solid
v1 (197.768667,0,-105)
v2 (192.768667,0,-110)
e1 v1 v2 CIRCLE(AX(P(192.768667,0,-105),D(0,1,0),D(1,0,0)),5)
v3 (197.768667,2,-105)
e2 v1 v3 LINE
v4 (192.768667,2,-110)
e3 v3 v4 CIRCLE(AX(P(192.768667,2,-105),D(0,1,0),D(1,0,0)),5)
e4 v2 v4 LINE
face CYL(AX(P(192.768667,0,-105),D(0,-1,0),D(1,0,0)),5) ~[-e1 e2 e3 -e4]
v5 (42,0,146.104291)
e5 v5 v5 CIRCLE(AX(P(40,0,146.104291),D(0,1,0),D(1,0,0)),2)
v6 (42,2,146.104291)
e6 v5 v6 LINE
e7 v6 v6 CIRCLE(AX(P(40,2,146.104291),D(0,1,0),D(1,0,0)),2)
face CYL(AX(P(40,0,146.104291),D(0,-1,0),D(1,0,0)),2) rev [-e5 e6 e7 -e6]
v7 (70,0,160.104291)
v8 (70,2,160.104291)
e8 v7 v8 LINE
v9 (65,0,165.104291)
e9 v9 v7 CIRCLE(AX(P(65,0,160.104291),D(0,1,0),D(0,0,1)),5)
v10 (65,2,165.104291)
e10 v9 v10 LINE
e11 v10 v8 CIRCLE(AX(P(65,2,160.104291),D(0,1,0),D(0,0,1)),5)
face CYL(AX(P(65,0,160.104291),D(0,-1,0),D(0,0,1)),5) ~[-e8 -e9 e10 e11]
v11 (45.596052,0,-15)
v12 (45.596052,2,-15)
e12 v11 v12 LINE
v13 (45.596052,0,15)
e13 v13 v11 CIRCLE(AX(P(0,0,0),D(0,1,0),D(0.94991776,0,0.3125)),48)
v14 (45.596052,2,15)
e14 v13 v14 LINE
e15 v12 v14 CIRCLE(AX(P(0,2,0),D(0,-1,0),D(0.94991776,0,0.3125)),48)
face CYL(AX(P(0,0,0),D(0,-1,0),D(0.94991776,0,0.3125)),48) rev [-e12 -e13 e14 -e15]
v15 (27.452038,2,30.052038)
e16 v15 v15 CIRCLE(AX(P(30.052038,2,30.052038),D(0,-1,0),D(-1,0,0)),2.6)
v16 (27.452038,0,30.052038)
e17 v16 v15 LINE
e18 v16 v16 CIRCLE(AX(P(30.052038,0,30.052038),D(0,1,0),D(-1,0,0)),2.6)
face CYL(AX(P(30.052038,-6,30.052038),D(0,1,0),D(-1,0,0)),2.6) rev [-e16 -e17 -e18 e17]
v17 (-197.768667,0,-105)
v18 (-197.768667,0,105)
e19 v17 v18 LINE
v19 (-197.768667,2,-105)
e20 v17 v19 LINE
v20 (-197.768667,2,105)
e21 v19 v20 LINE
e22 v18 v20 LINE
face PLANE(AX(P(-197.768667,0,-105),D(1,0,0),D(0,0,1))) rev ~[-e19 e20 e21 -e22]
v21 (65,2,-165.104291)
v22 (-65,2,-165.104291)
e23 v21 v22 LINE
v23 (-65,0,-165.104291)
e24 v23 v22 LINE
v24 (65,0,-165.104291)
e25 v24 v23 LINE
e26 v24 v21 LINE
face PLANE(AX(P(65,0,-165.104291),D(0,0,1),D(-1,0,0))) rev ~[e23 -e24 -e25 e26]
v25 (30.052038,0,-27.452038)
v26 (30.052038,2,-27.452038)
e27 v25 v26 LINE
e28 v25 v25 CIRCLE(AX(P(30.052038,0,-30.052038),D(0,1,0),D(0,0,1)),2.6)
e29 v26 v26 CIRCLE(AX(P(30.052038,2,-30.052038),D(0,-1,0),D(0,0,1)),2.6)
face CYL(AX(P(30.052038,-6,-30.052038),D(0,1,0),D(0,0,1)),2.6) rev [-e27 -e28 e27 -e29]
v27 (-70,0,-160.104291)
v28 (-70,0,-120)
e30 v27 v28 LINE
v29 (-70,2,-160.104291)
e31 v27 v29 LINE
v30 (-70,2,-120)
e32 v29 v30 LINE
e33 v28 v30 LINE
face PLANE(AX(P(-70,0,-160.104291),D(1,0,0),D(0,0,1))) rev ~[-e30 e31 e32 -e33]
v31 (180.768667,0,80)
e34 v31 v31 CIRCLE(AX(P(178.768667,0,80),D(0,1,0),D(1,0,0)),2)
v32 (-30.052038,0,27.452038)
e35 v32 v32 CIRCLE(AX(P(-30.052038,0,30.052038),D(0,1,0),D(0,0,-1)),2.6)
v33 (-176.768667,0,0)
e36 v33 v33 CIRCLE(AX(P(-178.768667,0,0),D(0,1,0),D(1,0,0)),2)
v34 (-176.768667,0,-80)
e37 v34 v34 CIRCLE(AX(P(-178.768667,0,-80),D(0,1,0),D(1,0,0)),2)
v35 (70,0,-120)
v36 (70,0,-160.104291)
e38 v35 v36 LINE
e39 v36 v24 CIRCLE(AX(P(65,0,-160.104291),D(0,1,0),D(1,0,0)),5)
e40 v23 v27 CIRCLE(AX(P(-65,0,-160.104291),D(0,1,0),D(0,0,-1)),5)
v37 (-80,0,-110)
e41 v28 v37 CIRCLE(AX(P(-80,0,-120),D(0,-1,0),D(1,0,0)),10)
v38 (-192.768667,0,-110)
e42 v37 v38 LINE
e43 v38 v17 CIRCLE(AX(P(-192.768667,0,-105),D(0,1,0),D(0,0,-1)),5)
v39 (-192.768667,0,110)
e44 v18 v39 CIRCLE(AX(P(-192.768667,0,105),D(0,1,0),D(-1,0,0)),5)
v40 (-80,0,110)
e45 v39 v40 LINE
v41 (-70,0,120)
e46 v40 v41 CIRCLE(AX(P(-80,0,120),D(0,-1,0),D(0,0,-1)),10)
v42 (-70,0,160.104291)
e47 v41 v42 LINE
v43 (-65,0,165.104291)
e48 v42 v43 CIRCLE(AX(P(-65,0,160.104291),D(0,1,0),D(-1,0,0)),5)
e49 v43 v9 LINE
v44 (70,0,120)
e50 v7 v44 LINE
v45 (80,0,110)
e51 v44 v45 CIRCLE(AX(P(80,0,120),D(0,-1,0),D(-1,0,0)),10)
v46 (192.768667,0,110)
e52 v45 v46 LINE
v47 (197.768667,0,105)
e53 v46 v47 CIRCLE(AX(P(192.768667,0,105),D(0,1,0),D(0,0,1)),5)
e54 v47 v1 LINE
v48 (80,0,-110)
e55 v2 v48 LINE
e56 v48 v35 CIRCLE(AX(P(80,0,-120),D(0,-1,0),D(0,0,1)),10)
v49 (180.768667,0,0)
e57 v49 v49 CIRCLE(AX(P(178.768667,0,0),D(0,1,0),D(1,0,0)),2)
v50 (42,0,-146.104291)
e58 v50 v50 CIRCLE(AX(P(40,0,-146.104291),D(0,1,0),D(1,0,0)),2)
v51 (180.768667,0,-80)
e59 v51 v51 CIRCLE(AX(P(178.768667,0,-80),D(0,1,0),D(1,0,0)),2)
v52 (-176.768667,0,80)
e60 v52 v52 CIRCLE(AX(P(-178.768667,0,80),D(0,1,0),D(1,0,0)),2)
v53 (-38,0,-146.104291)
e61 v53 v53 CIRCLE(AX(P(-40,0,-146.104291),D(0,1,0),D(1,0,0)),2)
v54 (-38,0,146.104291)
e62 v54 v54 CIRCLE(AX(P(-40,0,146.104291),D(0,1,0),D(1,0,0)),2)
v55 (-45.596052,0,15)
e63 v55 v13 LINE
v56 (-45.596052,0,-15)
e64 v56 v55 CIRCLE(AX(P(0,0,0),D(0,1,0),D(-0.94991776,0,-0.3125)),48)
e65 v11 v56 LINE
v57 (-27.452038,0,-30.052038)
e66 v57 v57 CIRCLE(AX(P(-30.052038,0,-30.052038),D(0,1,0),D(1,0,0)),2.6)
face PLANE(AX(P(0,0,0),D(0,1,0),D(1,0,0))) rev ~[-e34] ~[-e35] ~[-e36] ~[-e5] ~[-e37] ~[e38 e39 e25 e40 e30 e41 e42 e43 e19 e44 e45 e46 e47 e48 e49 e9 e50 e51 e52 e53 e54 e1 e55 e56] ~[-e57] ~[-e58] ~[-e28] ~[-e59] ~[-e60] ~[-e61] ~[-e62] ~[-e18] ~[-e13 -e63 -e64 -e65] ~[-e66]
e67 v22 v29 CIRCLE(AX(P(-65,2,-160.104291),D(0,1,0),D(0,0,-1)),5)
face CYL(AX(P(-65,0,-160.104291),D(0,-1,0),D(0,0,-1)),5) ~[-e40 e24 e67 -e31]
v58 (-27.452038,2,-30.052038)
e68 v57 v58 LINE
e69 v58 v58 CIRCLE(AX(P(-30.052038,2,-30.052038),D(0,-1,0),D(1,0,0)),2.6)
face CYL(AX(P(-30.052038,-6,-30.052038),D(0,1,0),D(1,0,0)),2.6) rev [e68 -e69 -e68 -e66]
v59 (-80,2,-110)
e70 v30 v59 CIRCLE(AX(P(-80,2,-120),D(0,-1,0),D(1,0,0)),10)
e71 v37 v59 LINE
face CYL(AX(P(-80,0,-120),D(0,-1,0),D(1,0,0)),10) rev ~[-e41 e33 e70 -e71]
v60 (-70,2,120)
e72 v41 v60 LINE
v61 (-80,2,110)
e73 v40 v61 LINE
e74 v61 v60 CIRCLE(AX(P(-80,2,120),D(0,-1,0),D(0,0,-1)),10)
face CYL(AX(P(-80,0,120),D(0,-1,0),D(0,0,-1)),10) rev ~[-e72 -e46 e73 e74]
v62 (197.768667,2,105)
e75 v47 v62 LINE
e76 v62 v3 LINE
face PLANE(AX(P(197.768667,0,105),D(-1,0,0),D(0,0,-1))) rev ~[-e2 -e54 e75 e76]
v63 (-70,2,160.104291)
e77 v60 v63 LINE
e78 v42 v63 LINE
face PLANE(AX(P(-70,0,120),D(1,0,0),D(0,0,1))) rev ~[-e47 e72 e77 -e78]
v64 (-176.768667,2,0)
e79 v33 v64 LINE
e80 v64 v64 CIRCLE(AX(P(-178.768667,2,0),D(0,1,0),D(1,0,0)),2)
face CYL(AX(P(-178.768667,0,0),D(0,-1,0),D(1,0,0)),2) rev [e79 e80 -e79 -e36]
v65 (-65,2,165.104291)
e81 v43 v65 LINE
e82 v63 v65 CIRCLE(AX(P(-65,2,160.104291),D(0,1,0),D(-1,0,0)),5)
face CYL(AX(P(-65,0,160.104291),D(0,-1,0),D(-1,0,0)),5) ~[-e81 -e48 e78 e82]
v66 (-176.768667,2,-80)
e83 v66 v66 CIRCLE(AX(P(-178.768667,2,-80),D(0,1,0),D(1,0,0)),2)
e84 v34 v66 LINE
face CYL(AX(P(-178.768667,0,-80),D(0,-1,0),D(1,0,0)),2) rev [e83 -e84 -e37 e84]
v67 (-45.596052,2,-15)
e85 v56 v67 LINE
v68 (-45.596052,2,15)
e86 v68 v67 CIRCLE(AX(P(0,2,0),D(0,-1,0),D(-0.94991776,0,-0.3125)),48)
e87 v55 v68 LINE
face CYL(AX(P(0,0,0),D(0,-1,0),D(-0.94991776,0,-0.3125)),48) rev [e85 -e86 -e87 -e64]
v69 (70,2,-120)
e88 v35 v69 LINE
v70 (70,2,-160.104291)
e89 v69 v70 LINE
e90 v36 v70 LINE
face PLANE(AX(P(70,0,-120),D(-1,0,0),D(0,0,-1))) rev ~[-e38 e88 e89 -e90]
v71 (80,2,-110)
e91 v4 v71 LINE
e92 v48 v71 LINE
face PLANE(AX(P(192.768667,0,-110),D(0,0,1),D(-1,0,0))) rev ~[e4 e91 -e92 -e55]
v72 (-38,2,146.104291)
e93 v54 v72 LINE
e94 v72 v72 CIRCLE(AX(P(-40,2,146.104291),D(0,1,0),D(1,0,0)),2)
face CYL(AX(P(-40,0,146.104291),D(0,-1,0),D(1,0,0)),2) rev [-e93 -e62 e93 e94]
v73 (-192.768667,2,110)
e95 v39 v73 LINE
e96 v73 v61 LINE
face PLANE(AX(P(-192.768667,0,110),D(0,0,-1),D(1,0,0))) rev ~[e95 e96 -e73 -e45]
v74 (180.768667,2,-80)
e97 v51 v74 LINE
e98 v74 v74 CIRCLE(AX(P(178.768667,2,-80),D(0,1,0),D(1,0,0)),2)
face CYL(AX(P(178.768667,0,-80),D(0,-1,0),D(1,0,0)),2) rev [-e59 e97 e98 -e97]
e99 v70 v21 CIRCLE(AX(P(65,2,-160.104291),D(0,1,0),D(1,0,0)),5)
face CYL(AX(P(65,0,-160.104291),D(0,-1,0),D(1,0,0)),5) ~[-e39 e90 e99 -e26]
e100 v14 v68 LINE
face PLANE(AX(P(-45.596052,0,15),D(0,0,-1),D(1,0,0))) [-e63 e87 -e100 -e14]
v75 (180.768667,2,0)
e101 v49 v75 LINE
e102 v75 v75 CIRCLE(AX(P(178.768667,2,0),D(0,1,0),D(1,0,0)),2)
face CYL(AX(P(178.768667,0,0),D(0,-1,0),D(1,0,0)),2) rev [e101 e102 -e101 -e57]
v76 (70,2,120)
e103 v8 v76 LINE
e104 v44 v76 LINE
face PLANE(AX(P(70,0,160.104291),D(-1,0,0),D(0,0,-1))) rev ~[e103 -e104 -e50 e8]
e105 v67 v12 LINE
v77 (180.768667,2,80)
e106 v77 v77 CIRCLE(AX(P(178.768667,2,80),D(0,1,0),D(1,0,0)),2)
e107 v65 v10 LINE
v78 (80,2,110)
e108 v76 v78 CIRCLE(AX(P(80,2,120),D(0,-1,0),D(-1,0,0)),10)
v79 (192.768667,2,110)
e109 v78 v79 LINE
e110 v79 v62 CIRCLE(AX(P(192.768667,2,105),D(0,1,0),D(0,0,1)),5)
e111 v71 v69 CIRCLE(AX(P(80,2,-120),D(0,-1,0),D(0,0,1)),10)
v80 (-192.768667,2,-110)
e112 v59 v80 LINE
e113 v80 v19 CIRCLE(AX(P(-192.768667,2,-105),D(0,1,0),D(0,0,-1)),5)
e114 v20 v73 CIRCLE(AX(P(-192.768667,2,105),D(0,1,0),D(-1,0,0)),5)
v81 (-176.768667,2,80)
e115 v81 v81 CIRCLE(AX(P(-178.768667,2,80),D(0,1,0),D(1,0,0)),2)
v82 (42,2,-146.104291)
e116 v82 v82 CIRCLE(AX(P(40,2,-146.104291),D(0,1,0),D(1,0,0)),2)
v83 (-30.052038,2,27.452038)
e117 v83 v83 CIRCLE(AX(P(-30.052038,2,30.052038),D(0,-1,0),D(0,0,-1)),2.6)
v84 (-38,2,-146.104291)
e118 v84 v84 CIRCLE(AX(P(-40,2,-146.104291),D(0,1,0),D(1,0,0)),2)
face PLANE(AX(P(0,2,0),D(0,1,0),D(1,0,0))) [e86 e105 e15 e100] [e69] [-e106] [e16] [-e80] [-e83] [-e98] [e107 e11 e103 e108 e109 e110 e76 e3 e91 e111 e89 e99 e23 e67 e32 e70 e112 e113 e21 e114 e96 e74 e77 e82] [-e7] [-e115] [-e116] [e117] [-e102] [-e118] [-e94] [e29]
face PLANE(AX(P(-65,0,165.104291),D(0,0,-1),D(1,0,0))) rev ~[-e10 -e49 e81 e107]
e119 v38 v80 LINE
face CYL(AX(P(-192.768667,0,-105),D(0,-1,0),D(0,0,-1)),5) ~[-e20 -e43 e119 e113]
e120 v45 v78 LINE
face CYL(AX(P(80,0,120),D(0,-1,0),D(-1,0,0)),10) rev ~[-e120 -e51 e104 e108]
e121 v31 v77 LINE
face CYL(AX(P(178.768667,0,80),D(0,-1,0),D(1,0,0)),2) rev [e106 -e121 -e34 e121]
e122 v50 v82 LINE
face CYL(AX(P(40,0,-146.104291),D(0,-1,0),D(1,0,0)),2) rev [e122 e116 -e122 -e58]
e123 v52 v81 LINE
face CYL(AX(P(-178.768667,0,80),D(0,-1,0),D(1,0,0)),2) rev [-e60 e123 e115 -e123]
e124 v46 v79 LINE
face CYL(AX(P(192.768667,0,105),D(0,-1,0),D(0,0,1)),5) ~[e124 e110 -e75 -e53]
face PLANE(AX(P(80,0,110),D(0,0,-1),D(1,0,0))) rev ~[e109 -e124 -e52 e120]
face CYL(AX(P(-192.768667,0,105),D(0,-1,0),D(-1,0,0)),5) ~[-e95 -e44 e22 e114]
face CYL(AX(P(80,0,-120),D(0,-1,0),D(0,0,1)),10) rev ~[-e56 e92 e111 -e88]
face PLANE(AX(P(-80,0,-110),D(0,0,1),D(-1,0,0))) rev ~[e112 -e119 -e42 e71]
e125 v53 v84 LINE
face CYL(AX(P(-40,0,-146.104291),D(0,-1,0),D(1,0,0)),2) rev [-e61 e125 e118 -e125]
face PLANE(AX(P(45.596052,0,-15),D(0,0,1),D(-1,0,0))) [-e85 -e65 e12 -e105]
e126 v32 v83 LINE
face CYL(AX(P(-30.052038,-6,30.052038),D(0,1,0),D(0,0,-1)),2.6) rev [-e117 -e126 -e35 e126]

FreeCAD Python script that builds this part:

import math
import FreeCAD as App
import Part
import Sketcher
Q = App.Units.Quantity

doc = App.newDocument("Part")
body = doc.addObject("PartDesign::Body", "Body")

# Sketch on XZ plane
sketch1 = body.newObject("Sketcher::SketchObject", "Sketch")
sketch1.AttachmentSupport = (doc.getObject("XZ_Plane"), [""])
sketch1.MapMode = "FlatFace"
sketch1.addGeometry([
    Part.LineSegment(App.Vector(-65, 165.104291, 0), App.Vector(65, 165.104291, 0)),  # 0
    Part.ArcOfCircle(Part.Circle(App.Vector(65, 160.104291, 0), App.Vector(0, 0, 1), 5), math.radians(0), math.radians(90)),  # 1
    Part.LineSegment(App.Vector(70, 160.104291, 0), App.Vector(70, 120, 0)),  # 2
    Part.ArcOfCircle(Part.Circle(App.Vector(80, 120, 0), App.Vector(0, 0, 1), 10), math.radians(180), math.radians(270)),  # 3
    Part.LineSegment(App.Vector(80, 110, 0), App.Vector(192.768667, 110, 0)),  # 4
    Part.ArcOfCircle(Part.Circle(App.Vector(192.768667, 105, 0), App.Vector(0, 0, 1), 5), math.radians(0), math.radians(90)),  # 5
    Part.LineSegment(App.Vector(197.768667, 105, 0), App.Vector(197.768667, -105, 0)),  # 6
    Part.ArcOfCircle(Part.Circle(App.Vector(192.768667, -105, 0), App.Vector(0, 0, 1), 5), math.radians(-90), math.radians(0)),  # 7
    Part.LineSegment(App.Vector(192.768667, -110, 0), App.Vector(80, -110, 0)),  # 8
    Part.ArcOfCircle(Part.Circle(App.Vector(80, -120, 0), App.Vector(0, 0, 1), 10), math.radians(90), math.radians(180)),  # 9
    Part.LineSegment(App.Vector(70, -120, 0), App.Vector(70, -160.104291, 0)),  # 10
    Part.ArcOfCircle(Part.Circle(App.Vector(65, -160.104291, 0), App.Vector(0, 0, 1), 5), math.radians(-90), math.radians(0)),  # 11
    Part.LineSegment(App.Vector(65, -165.104291, 0), App.Vector(-65, -165.104291, 0)),  # 12
    Part.ArcOfCircle(Part.Circle(App.Vector(-65, -160.104291, 0), App.Vector(0, 0, 1), 5), math.radians(180), math.radians(270)),  # 13
    Part.LineSegment(App.Vector(-70, -160.104291, 0), App.Vector(-70, -120, 0)),  # 14
    Part.ArcOfCircle(Part.Circle(App.Vector(-80, -120, 0), App.Vector(0, 0, 1), 10), math.radians(0), math.radians(90)),  # 15
    Part.LineSegment(App.Vector(-80, -110, 0), App.Vector(-192.768667, -110, 0)),  # 16
    Part.ArcOfCircle(Part.Circle(App.Vector(-192.768667, -105, 0), App.Vector(0, 0, 1), 5), math.radians(180), math.radians(270)),  # 17
    Part.LineSegment(App.Vector(-197.768667, -105, 0), App.Vector(-197.768667, 105, 0)),  # 18
    Part.ArcOfCircle(Part.Circle(App.Vector(-192.768667, 105, 0), App.Vector(0, 0, 1), 5), math.radians(90), math.radians(180)),  # 19
    Part.LineSegment(App.Vector(-192.768667, 110, 0), App.Vector(-80, 110, 0)),  # 20
    Part.ArcOfCircle(Part.Circle(App.Vector(-80, 120, 0), App.Vector(0, 0, 1), 10), math.radians(-90), math.radians(0)),  # 21
    Part.LineSegment(App.Vector(-70, 120, 0), App.Vector(-70, 160.104291, 0)),  # 22
    Part.ArcOfCircle(Part.Circle(App.Vector(-65, 160.104291, 0), App.Vector(0, 0, 1), 5), math.radians(90), math.radians(180)),  # 23
    Part.Circle(App.Vector(-178.768667, 80, 0), App.Vector(0, 0, 1), 2),  # 24
    Part.Circle(App.Vector(-40, 146.104291, 0), App.Vector(0, 0, 1), 2),  # 25
    Part.Circle(App.Vector(40, 146.104291, 0), App.Vector(0, 0, 1), 2),  # 26
    Part.Circle(App.Vector(178.768667, 80, 0), App.Vector(0, 0, 1), 2),  # 27
    Part.Circle(App.Vector(-178.768667, 0, 0), App.Vector(0, 0, 1), 2),  # 28
    Part.Circle(App.Vector(-178.768667, -80, 0), App.Vector(0, 0, 1), 2),  # 29
    Part.Circle(App.Vector(-40, -146.104291, 0), App.Vector(0, 0, 1), 2),  # 30
    Part.Circle(App.Vector(178.768667, 0, 0), App.Vector(0, 0, 1), 2),  # 31
    Part.Circle(App.Vector(40, -146.104291, 0), App.Vector(0, 0, 1), 2),  # 32
    Part.Circle(App.Vector(178.768667, -80, 0), App.Vector(0, 0, 1), 2),  # 33
], False)
sketch1.addConstraint([
    Sketcher.Constraint("Tangent", 0, 2, 1, 2),
    Sketcher.Constraint("Tangent", 1, 1, 2, 1),
    Sketcher.Constraint("Tangent", 2, 2, 3, 1),
    Sketcher.Constraint("Tangent", 3, 2, 4, 1),
    Sketcher.Constraint("Tangent", 4, 2, 5, 2),
    Sketcher.Constraint("Tangent", 5, 1, 6, 1),
    Sketcher.Constraint("Tangent", 6, 2, 7, 2),
    Sketcher.Constraint("Tangent", 7, 1, 8, 1),
    Sketcher.Constraint("Tangent", 8, 2, 9, 1),
    Sketcher.Constraint("Tangent", 9, 2, 10, 1),
    Sketcher.Constraint("Tangent", 10, 2, 11, 2),
    Sketcher.Constraint("Tangent", 11, 1, 12, 1),
    Sketcher.Constraint("Tangent", 12, 2, 13, 2),
    Sketcher.Constraint("Tangent", 13, 1, 14, 1),
    Sketcher.Constraint("Tangent", 14, 2, 15, 1),
    Sketcher.Constraint("Tangent", 15, 2, 16, 1),
    Sketcher.Constraint("Tangent", 16, 2, 17, 2),
    Sketcher.Constraint("Tangent", 17, 1, 18, 1),
    Sketcher.Constraint("Tangent", 18, 2, 19, 2),
    Sketcher.Constraint("Tangent", 19, 1, 20, 1),
    Sketcher.Constraint("Tangent", 20, 2, 21, 1),
    Sketcher.Constraint("Tangent", 21, 2, 22, 1),
    Sketcher.Constraint("Tangent", 22, 2, 23, 2),
    Sketcher.Constraint("Tangent", 23, 1, 0, 1),
    Sketcher.Constraint("Horizontal", 0),
    Sketcher.Constraint("Vertical", 2),
    Sketcher.Constraint("Horizontal", 4),
    Sketcher.Constraint("Vertical", 6),
    Sketcher.Constraint("Horizontal", 8),
    Sketcher.Constraint("Vertical", 10),
    Sketcher.Constraint("Horizontal", 12),
    Sketcher.Constraint("Vertical", 14),
    Sketcher.Constraint("Horizontal", 16),
    Sketcher.Constraint("Vertical", 18),
    Sketcher.Constraint("Horizontal", 20),
    Sketcher.Constraint("Vertical", 22),
    Sketcher.Constraint("Equal", 1, 5),
    Sketcher.Constraint("Equal", 5, 7),
    Sketcher.Constraint("Equal", 3, 9),
    Sketcher.Constraint("Equal", 7, 11),
    Sketcher.Constraint("Equal", 11, 13),
    Sketcher.Constraint("Equal", 9, 15),
    Sketcher.Constraint("Equal", 13, 17),
    Sketcher.Constraint("Equal", 17, 19),
    Sketcher.Constraint("Equal", 15, 21),
    Sketcher.Constraint("Equal", 19, 23),
    Sketcher.Constraint("Equal", 24, 25),
    Sketcher.Constraint("Equal", 25, 26),
    Sketcher.Constraint("Equal", 26, 27),
    Sketcher.Constraint("Equal", 27, 28),
    Sketcher.Constraint("Equal", 28, 29),
    Sketcher.Constraint("Equal", 29, 30),
    Sketcher.Constraint("Equal", 30, 31),
    Sketcher.Constraint("Equal", 31, 32),
    Sketcher.Constraint("Equal", 32, 33),
    Sketcher.Constraint("Symmetric", 1, 3, 13, 3, -1, 1),
    Sketcher.Constraint("Symmetric", 5, 3, 17, 3, -1, 1),
    Sketcher.Constraint("Symmetric", 9, 3, 21, 3, -1, 1),
    Sketcher.Constraint("Symmetric", 27, 3, 29, 3, -1, 1),
    Sketcher.Constraint("Symmetric", 26, 3, 30, 3, -1, 1),
    Sketcher.Constraint("Symmetric", 28, 3, 31, 3, -1, 1),
    Sketcher.Constraint("Symmetric", 25, 3, 32, 3, -1, 1),
    Sketcher.Constraint("Symmetric", 24, 3, 33, 3, -1, 1),
    Sketcher.Constraint("Symmetric", 9, 3, 15, 3, -2),
    Sketcher.Constraint("Symmetric", 25, 3, 26, 3, -2),
    Sketcher.Constraint("Symmetric", 24, 3, 27, 3, -2),
    Sketcher.Constraint("PointOnObject", 28, 3, -1),
    Sketcher.Constraint("Vertical", 24, 3, 28, 3),
    Sketcher.Constraint("Diameter", 24, 4.0),
    Sketcher.Constraint("Radius", 1, 5.0),
    Sketcher.Constraint("Radius", 3, 10.0),
    Sketcher.Constraint("DistanceX", 0, 1, 0, 2, 130.0),
    Sketcher.Constraint("DistanceY", 6, 2, 6, 1, 210.0),
    Sketcher.Constraint("DistanceY", -1, 1, 24, 3, 80.0),
    Sketcher.Constraint("DistanceX", 25, 3, -1, 1, 40.0),
    Sketcher.Constraint("DistanceX", 19, 3, 24, 3, 14.0),
    Sketcher.Constraint("DistanceY", 25, 3, 23, 3, 14.0),
    Sketcher.Constraint("DistanceY", 2, 2, 2, 1, 40.104291),
    Sketcher.Constraint("DistanceX", 4, 1, 4, 2, 112.768667),
])
pad1 = body.newObject("PartDesign::Pad", "Pad")
pad1.Profile = sketch1
pad1.Length = 2
pad1.Reversed = True

# Sketch on XZ plane
sketch2 = body.newObject("Sketcher::SketchObject", "Sketch001")
sketch2.AttachmentSupport = (doc.getObject("XZ_Plane"), [""])
sketch2.MapMode = "FlatFace"
sketch2.addGeometry([
    Part.LineSegment(App.Vector(-45.596052, -15, 0), App.Vector(45.596052, -15, 0)),
    Part.ArcOfCircle(Part.Circle(App.Vector(0, 0, 0), App.Vector(0, 0, 1), 48), math.radians(-18.209957), math.radians(18.209957)),
    Part.LineSegment(App.Vector(45.596052, 15, 0), App.Vector(-45.596052, 15, 0)),
    Part.ArcOfCircle(Part.Circle(App.Vector(0, 0, 0), App.Vector(0, 0, 1), 48), math.radians(161.790043), math.radians(198.209957)),
], False)
sketch2.addConstraint([
    Sketcher.Constraint("Coincident", 0, 2, 1, 1),
    Sketcher.Constraint("Coincident", 1, 2, 2, 1),
    Sketcher.Constraint("Coincident", 2, 2, 3, 1),
    Sketcher.Constraint("Coincident", 3, 2, 0, 1),
    Sketcher.Constraint("Horizontal", 0),
    Sketcher.Constraint("Horizontal", 2),
    Sketcher.Constraint("Coincident", 1, 3, -1, 1),
    Sketcher.Constraint("Coincident", 3, 3, -1, 1),
    Sketcher.Constraint("Equal", 1, 3),
    Sketcher.Constraint("Vertical", 0, 2, 1, 2),
    Sketcher.Constraint("Radius", 1, 48.0),
    Sketcher.Constraint("DistanceY", 0, 2, -1, 1, 15.0),
])
pocket1 = body.newObject("PartDesign::Pocket", "Pocket")
pocket1.Profile = sketch2
pocket1.Type = "ThroughAll"

# Sketch on YZ plane
sketch3 = body.newObject("Sketcher::SketchObject", "Sketch002")
sketch3.AttachmentSupport = (doc.getObject("YZ_Plane"), [""])
sketch3.MapMode = "FlatFace"
sketch3.AttachmentOffset = App.Placement(App.Vector(0, 0, 30.052038), App.Rotation())
sketch3.addGeometry([
    Part.LineSegment(App.Vector(-7.562238, -30.052038, 0), App.Vector(2, -30.052038, 0)),
    Part.LineSegment(App.Vector(2, -30.052038, 0), App.Vector(2, -27.452038, 0)),
    Part.LineSegment(App.Vector(2, -27.452038, 0), App.Vector(-6, -27.452038, 0)),
    Part.LineSegment(App.Vector(-6, -27.452038, 0), App.Vector(-7.562238, -30.052038, 0)),
], False)
sketch3.addGeometry(Part.LineSegment(App.Vector(2, -30.052038, 0), App.Vector(-7.562238, -30.052038, 0)), True)  # axis
sketch3.addConstraint([
    Sketcher.Constraint("Coincident", 0, 2, 1, 1),
    Sketcher.Constraint("Coincident", 1, 2, 2, 1),
    Sketcher.Constraint("Coincident", 2, 2, 3, 1),
    Sketcher.Constraint("Coincident", 3, 2, 0, 1),
    Sketcher.Constraint("Horizontal", 0),
    Sketcher.Constraint("Vertical", 1),
    Sketcher.Constraint("Horizontal", 2),
    Sketcher.Constraint("Horizontal", 4),
    Sketcher.Constraint("Coincident", 4, 1, 0, 2),
    Sketcher.Constraint("Equal", 0, 4),
    Sketcher.Constraint("DistanceX", 2, 2, 2, 1, 8.0),
    Sketcher.Constraint("Angle", 3, Q("-121 deg")),
    Sketcher.Constraint("DistanceY", 1, 1, 1, 2, 2.6),
    Sketcher.Constraint("DistanceX", -1, 1, 0, 2, 2.0),
    Sketcher.Constraint("DistanceY", 0, 2, -1, 1, 30.052038),
])
groove = body.newObject("PartDesign::Groove", "Groove")
groove.Profile = sketch3
groove.ReferenceAxis = (sketch3, ["Axis0"])
groove.Angle = 360
doc.recompute()

polarpattern = body.newObject("PartDesign::PolarPattern", "PolarPattern")
polarpattern.Originals = [groove]
polarpattern.Axis = (doc.getObject("Y_Axis"), [""])
polarpattern.Angle = 360
polarpattern.Occurrences = 4
body.Tip = polarpattern

doc.recompute()
